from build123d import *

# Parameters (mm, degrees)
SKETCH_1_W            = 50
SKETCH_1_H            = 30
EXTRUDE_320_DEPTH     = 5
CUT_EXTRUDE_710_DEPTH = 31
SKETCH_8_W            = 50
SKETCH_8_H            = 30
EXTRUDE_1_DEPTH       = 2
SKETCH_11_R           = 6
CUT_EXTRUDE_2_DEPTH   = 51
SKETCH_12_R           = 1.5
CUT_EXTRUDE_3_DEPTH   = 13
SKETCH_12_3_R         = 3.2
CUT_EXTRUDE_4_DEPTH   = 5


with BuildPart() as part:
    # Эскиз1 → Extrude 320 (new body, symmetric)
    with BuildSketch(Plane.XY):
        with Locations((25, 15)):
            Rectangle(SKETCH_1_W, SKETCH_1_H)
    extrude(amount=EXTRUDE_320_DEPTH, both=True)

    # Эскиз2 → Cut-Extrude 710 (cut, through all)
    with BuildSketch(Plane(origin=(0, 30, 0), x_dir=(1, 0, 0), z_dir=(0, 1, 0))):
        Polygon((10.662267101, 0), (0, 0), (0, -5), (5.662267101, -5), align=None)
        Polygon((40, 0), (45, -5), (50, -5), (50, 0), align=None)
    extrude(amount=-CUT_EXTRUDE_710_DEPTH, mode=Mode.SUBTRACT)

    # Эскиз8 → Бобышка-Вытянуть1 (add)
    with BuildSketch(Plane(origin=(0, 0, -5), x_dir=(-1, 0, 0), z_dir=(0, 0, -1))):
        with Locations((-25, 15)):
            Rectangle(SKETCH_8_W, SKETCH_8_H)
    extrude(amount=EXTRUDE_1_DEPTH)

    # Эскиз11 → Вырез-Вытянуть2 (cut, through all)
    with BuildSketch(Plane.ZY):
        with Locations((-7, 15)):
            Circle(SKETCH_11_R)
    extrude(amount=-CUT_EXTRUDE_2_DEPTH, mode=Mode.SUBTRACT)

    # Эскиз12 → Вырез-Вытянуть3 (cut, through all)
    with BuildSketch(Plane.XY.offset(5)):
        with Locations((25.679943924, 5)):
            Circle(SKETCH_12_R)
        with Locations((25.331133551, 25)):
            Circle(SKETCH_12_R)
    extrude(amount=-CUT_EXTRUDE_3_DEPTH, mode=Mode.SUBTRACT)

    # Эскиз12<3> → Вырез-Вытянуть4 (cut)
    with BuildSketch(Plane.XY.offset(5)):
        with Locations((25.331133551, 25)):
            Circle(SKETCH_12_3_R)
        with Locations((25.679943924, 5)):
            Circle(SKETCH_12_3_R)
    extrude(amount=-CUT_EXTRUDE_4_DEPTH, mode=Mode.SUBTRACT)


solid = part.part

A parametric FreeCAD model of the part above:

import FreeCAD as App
import Part
import Sketcher
from FreeCAD import Vector
Q = App.Units.Quantity

doc = App.newDocument("Part")
body = doc.addObject("PartDesign::Body", "Body")

# Sketch on XY plane
sketch1 = doc.addObject("Sketcher::SketchObject", "Sketch")
body.addObject(sketch1)
sketch1.AttachmentSupport = (doc.XY_Plane, [""])
sketch1.MapMode = "FlatFace"
sketch1.addGeometry(Part.LineSegment(Vector(0, 30, 0), Vector(0, 0, 0)), False)
sketch1.addGeometry(Part.LineSegment(Vector(0, 0, 0), Vector(50, 0, 0)), False)
sketch1.addGeometry(Part.LineSegment(Vector(50, 0, 0), Vector(50, 30, 0)), False)
sketch1.addGeometry(Part.LineSegment(Vector(50, 30, 0), Vector(0, 30, 0)), False)
sketch1.addConstraint(Sketcher.Constraint("Coincident", 0, 2, 1, 1))
sketch1.addConstraint(Sketcher.Constraint("Coincident", 1, 2, 2, 1))
sketch1.addConstraint(Sketcher.Constraint("Coincident", 2, 2, 3, 1))
sketch1.addConstraint(Sketcher.Constraint("Coincident", 3, 2, 0, 1))
sketch1.addConstraint(Sketcher.Constraint("Vertical", 0))
sketch1.addConstraint(Sketcher.Constraint("Horizontal", 1))
sketch1.addConstraint(Sketcher.Constraint("Vertical", 2))
sketch1.addConstraint(Sketcher.Constraint("Horizontal", 3))
sketch1.addConstraint(Sketcher.Constraint("Coincident", 0, 2, -1, 1))
sketch1.addConstraint(Sketcher.Constraint("DistanceX", 1, 1, 1, 2, Q("50 mm")))
sketch1.addConstraint(Sketcher.Constraint("DistanceY", 0, 2, 0, 1, Q("30 mm")))
pad1 = doc.addObject("PartDesign::Pad", "Pad")
body.addObject(pad1)
pad1.Profile = sketch1
pad1.Length = 10
pad1.Midplane = True

# Sketch on XZ plane
sketch2 = doc.addObject("Sketcher::SketchObject", "Sketch001")
body.addObject(sketch2)
sketch2.AttachmentSupport = (doc.XZ_Plane, [""])
sketch2.MapMode = "FlatFace"
sketch2.AttachmentOffset = App.Placement(Vector(0, 0, -30), App.Rotation())
sketch2.addGeometry(Part.LineSegment(Vector(11, 0, 0), Vector(0, 0, 0)), False)
sketch2.addGeometry(Part.LineSegment(Vector(0, 0, 0), Vector(0, 5, 0)), False)
sketch2.addGeometry(Part.LineSegment(Vector(0, 5, 0), Vector(6, 5, 0)), False)
sketch2.addGeometry(Part.LineSegment(Vector(6, 5, 0), Vector(11, 0, 0)), False)
sketch2.addGeometry(Part.LineSegment(Vector(40, 0, 0), Vector(45, 5, 0)), False)
sketch2.addGeometry(Part.LineSegment(Vector(45, 5, 0), Vector(50, 5, 0)), False)
sketch2.addGeometry(Part.LineSegment(Vector(50, 5, 0), Vector(50, 0, 0)), False)
sketch2.addGeometry(Part.LineSegment(Vector(50, 0, 0), Vector(40, 0, 0)), False)
sketch2.addConstraint(Sketcher.Constraint("Coincident", 0, 2, 1, 1))
sketch2.addConstraint(Sketcher.Constraint("Coincident", 1, 2, 2, 1))
sketch2.addConstraint(Sketcher.Constraint("Coincident", 2, 2, 3, 1))
sketch2.addConstraint(Sketcher.Constraint("Coincident", 3, 2, 0, 1))
sketch2.addConstraint(Sketcher.Constraint("Coincident", 4, 2, 5, 1))
sketch2.addConstraint(Sketcher.Constraint("Coincident", 5, 2, 6, 1))
sketch2.addConstraint(Sketcher.Constraint("Coincident", 6, 2, 7, 1))
sketch2.addConstraint(Sketcher.Constraint("Coincident", 7, 2, 4, 1))
sketch2.addConstraint(Sketcher.Constraint("Horizontal", 0))
sketch2.addConstraint(Sketcher.Constraint("Vertical", 1))
sketch2.addConstraint(Sketcher.Constraint("Horizontal", 2))
sketch2.addConstraint(Sketcher.Constraint("Horizontal", 5))
sketch2.addConstraint(Sketcher.Constraint("Vertical", 6))
sketch2.addConstraint(Sketcher.Constraint("Horizontal", 7))
sketch2.addConstraint(Sketcher.Constraint("Coincident", 0, 2, -1, 1))
sketch2.addConstraint(Sketcher.Constraint("PointOnObject", 6, 2, -1))
sketch2.addConstraint(Sketcher.Constraint("Perpendicular", 3, 4))
sketch2.addConstraint(Sketcher.Constraint("Horizontal", 2, 2, 4, 2))
sketch2.addConstraint(Sketcher.Constraint("Equal", 5, 1))
sketch2.addConstraint(Sketcher.Constraint("Equal", 3, 4))
sketch2.addConstraint(Sketcher.Constraint("DistanceX", 5, 1, 5, 2, Q("5 mm")))
sketch2.addConstraint(Sketcher.Constraint("DistanceX", -1, 1, 4, 2, Q("45 mm")))
sketch2.addConstraint(Sketcher.Constraint("DistanceX", 0, 2, 0, 1, Q("10.662267 mm")))
pocket1 = doc.addObject("PartDesign::Pocket", "Pocket")
body.addObject(pocket1)
pocket1.Profile = sketch2
pocket1.Type = "ThroughAll"
pocket1.Reversed = True

# Sketch on XY plane
sketch3 = doc.addObject("Sketcher::SketchObject", "Sketch002")
body.addObject(sketch3)
sketch3.AttachmentSupport = (doc.XY_Plane, [""])
sketch3.MapMode = "FlatFace"
sketch3.AttachmentOffset = App.Placement(Vector(0, 0, -5), App.Rotation())
sketch3.addGeometry(Part.LineSegment(Vector(50, 30, 0), Vector(50, 0, 0)), False)
sketch3.addGeometry(Part.LineSegment(Vector(50, 0, 0), Vector(0, 0, 0)), False)
sketch3.addGeometry(Part.LineSegment(Vector(0, 0, 0), Vector(0, 30, 0)), False)
sketch3.addGeometry(Part.LineSegment(Vector(0, 30, 0), Vector(50, 30, 0)), False)
sketch3.addConstraint(Sketcher.Constraint("Coincident", 0, 2, 1, 1))
sketch3.addConstraint(Sketcher.Constraint("Coincident", 1, 2, 2, 1))
sketch3.addConstraint(Sketcher.Constraint("Coincident", 2, 2, 3, 1))
sketch3.addConstraint(Sketcher.Constraint("Coincident", 3, 2, 0, 1))
sketch3.addConstraint(Sketcher.Constraint("Vertical", 0))
sketch3.addConstraint(Sketcher.Constraint("Horizontal", 1))
sketch3.addConstraint(Sketcher.Constraint("Vertical", 2))
sketch3.addConstraint(Sketcher.Constraint("Horizontal", 3))
sketch3.addConstraint(Sketcher.Constraint("Coincident", 1, 2, -1, 1))
sketch3.addConstraint(Sketcher.Constraint("DistanceX", 1, 2, 1, 1, Q("50 mm")))
sketch3.addConstraint(Sketcher.Constraint("DistanceY", 0, 2, 0, 1, Q("30 mm")))
pad2 = doc.addObject("PartDesign::Pad", "Pad001")
body.addObject(pad2)
pad2.Profile = sketch3
pad2.Length = 2
pad2.Reversed = True

# Sketch on YZ plane
sketch4 = doc.addObject("Sketcher::SketchObject", "Sketch003")
body.addObject(sketch4)
sketch4.AttachmentSupport = (doc.YZ_Plane, [""])
sketch4.MapMode = "FlatFace"
sketch4.addGeometry(Part.Circle(Vector(15, -7, 0), Vector(0, 0, 1), 6), False)
sketch4.addConstraint(Sketcher.Constraint("Diameter", 0, Q("12 mm")))
sketch4.addConstraint(Sketcher.Constraint("DistanceX", -1, 1, 0, 3, Q("15 mm")))
sketch4.addConstraint(Sketcher.Constraint("DistanceY", 0, 3, -1, 1, Q("7 mm")))
pocket2 = doc.addObject("PartDesign::Pocket", "Pocket001")
body.addObject(pocket2)
pocket2.Profile = sketch4
pocket2.Type = "ThroughAll"
pocket2.Reversed = True

# Sketch on XY plane
sketch5 = doc.addObject("Sketcher::SketchObject", "Sketch004")
body.addObject(sketch5)
sketch5.AttachmentSupport = (doc.XY_Plane, [""])
sketch5.MapMode = "FlatFace"
sketch5.AttachmentOffset = App.Placement(Vector(0, 0, 5), App.Rotation())
sketch5.addGeometry(Part.Circle(Vector(25.7, 5, 0), Vector(0, 0, 1), 1.5), False)
sketch5.addGeometry(Part.Circle(Vector(25.3, 25, 0), Vector(0, 0, 1), 1.5), False)
sketch5.addConstraint(Sketcher.Constraint("Equal", 0, 1))
sketch5.addConstraint(Sketcher.Constraint("Diameter", 0, Q("3 mm")))
sketch5.addConstraint(Sketcher.Constraint("DistanceY", -1, 1, 0, 3, Q("5 mm")))
sketch5.addConstraint(Sketcher.Constraint("DistanceY", -1, 1, 1, 3, Q("25 mm")))
sketch5.addConstraint(Sketcher.Constraint("DistanceX", 1, 3, 0, 3, Q("0.34881 mm")))
sketch5.addConstraint(Sketcher.Constraint("DistanceX", -1, 1, 0, 3, Q("25.679944 mm")))
pocket3 = doc.addObject("PartDesign::Pocket", "Pocket002")
body.addObject(pocket3)
pocket3.Profile = sketch5
pocket3.Type = "ThroughAll"

# Sketch on XY plane
sketch6 = doc.addObject("Sketcher::SketchObject", "Sketch005")
body.addObject(sketch6)
sketch6.AttachmentSupport = (doc.XY_Plane, [""])
sketch6.MapMode = "FlatFace"
sketch6.AttachmentOffset = App.Placement(Vector(0, 0, 5), App.Rotation())
sketch6.addGeometry(Part.Circle(Vector(25.3, 25, 0), Vector(0, 0, 1), 3.2), False)
sketch6.addGeometry(Part.Circle(Vector(25.7, 5, 0), Vector(0, 0, 1), 3.2), False)
sketch6.addConstraint(Sketcher.Constraint("Equal", 0, 1))
sketch6.addConstraint(Sketcher.Constraint("Diameter", 0, Q("6.4 mm")))
sketch6.addConstraint(Sketcher.Constraint("DistanceY", -1, 1, 0, 3, Q("25 mm")))
sketch6.addConstraint(Sketcher.Constraint("DistanceY", -1, 1, 1, 3, Q("5 mm")))
sketch6.addConstraint(Sketcher.Constraint("DistanceX", 0, 3, 1, 3, Q("0.34881 mm")))
sketch6.addConstraint(Sketcher.Constraint("DistanceX", -1, 1, 0, 3, Q("25.331134 mm")))
pocket4 = doc.addObject("PartDesign::Pocket", "Pocket003")
body.addObject(pocket4)
pocket4.Profile = sketch6
pocket4.Length = 5

doc.recompute()
